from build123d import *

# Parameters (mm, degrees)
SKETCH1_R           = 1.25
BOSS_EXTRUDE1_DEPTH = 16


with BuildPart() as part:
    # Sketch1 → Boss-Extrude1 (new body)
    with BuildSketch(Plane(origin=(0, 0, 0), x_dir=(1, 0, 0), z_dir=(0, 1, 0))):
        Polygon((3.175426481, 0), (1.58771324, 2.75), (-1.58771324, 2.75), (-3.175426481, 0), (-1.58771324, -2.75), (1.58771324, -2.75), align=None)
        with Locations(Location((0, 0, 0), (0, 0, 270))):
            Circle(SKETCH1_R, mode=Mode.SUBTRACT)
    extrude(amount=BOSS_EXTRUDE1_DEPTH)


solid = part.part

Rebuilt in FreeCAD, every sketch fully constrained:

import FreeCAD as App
import Part
import Sketcher
from FreeCAD import Vector
Q = App.Units.Quantity


def add_polygon(sketch, points):
    """Adds a closed chain of lines whose ends are joined by coincident constraints."""
    first, n = sketch.GeometryCount, len(points)
    for a, b in zip(points, points[1:] + points[:1]):
        sketch.addGeometry(Part.LineSegment(App.Vector(*a, 0), App.Vector(*b, 0)), False)
    for i in range(n):
        sketch.addConstraint(Sketcher.Constraint("Coincident", first + i, 2, first + (i + 1) % n, 1))

doc = App.newDocument("Part")
body = doc.addObject("PartDesign::Body", "Body")

# Sketch on XZ plane
sketch1 = body.newObject("Sketcher::SketchObject", "Sketch")
sketch1.AttachmentSupport = (doc.getObject("XZ_Plane"), [""])
sketch1.MapMode = "FlatFace"
add_polygon(sketch1, [(3.2, 0), (1.6, -2.8), (-1.6, -2.8), (-3.2, 0), (-1.6, 2.8), (1.6, 2.8)])  # lines 0-5
sketch1.addGeometry(Part.Circle(Vector(0, 0, 0), Vector(0, 0, 1), 1.2), False)  # 6
sketch1.addConstraint([
    Sketcher.Constraint("Horizontal", 1),
    Sketcher.Constraint("Horizontal", 4),
    Sketcher.Constraint("Coincident", 6, 3, -1, 1),
    Sketcher.Constraint("Symmetric", 0, 2, 3, 2, -1, 1),
    Sketcher.Constraint("Symmetric", 2, 2, 5, 2, -1, 1),
    Sketcher.Constraint("PointOnObject", 2, 2, -1),
    Sketcher.Constraint("Parallel", 2, 5),
    Sketcher.Constraint("Vertical", 1, 2, 3, 2),
    Sketcher.Constraint("Diameter", 6, 2.5),
    Sketcher.Constraint("Angle", 0, Q("-120 deg")),
    Sketcher.Constraint("DistanceY", 1, 2, 3, 2, 5.5),
    Sketcher.Constraint("DistanceX", 1, 2, 1, 1, 3.175426),
])
pad1 = body.newObject("PartDesign::Pad", "Pad")
pad1.Profile = sketch1
pad1.Length = 16
pad1.Reversed = True

doc.recompute()
